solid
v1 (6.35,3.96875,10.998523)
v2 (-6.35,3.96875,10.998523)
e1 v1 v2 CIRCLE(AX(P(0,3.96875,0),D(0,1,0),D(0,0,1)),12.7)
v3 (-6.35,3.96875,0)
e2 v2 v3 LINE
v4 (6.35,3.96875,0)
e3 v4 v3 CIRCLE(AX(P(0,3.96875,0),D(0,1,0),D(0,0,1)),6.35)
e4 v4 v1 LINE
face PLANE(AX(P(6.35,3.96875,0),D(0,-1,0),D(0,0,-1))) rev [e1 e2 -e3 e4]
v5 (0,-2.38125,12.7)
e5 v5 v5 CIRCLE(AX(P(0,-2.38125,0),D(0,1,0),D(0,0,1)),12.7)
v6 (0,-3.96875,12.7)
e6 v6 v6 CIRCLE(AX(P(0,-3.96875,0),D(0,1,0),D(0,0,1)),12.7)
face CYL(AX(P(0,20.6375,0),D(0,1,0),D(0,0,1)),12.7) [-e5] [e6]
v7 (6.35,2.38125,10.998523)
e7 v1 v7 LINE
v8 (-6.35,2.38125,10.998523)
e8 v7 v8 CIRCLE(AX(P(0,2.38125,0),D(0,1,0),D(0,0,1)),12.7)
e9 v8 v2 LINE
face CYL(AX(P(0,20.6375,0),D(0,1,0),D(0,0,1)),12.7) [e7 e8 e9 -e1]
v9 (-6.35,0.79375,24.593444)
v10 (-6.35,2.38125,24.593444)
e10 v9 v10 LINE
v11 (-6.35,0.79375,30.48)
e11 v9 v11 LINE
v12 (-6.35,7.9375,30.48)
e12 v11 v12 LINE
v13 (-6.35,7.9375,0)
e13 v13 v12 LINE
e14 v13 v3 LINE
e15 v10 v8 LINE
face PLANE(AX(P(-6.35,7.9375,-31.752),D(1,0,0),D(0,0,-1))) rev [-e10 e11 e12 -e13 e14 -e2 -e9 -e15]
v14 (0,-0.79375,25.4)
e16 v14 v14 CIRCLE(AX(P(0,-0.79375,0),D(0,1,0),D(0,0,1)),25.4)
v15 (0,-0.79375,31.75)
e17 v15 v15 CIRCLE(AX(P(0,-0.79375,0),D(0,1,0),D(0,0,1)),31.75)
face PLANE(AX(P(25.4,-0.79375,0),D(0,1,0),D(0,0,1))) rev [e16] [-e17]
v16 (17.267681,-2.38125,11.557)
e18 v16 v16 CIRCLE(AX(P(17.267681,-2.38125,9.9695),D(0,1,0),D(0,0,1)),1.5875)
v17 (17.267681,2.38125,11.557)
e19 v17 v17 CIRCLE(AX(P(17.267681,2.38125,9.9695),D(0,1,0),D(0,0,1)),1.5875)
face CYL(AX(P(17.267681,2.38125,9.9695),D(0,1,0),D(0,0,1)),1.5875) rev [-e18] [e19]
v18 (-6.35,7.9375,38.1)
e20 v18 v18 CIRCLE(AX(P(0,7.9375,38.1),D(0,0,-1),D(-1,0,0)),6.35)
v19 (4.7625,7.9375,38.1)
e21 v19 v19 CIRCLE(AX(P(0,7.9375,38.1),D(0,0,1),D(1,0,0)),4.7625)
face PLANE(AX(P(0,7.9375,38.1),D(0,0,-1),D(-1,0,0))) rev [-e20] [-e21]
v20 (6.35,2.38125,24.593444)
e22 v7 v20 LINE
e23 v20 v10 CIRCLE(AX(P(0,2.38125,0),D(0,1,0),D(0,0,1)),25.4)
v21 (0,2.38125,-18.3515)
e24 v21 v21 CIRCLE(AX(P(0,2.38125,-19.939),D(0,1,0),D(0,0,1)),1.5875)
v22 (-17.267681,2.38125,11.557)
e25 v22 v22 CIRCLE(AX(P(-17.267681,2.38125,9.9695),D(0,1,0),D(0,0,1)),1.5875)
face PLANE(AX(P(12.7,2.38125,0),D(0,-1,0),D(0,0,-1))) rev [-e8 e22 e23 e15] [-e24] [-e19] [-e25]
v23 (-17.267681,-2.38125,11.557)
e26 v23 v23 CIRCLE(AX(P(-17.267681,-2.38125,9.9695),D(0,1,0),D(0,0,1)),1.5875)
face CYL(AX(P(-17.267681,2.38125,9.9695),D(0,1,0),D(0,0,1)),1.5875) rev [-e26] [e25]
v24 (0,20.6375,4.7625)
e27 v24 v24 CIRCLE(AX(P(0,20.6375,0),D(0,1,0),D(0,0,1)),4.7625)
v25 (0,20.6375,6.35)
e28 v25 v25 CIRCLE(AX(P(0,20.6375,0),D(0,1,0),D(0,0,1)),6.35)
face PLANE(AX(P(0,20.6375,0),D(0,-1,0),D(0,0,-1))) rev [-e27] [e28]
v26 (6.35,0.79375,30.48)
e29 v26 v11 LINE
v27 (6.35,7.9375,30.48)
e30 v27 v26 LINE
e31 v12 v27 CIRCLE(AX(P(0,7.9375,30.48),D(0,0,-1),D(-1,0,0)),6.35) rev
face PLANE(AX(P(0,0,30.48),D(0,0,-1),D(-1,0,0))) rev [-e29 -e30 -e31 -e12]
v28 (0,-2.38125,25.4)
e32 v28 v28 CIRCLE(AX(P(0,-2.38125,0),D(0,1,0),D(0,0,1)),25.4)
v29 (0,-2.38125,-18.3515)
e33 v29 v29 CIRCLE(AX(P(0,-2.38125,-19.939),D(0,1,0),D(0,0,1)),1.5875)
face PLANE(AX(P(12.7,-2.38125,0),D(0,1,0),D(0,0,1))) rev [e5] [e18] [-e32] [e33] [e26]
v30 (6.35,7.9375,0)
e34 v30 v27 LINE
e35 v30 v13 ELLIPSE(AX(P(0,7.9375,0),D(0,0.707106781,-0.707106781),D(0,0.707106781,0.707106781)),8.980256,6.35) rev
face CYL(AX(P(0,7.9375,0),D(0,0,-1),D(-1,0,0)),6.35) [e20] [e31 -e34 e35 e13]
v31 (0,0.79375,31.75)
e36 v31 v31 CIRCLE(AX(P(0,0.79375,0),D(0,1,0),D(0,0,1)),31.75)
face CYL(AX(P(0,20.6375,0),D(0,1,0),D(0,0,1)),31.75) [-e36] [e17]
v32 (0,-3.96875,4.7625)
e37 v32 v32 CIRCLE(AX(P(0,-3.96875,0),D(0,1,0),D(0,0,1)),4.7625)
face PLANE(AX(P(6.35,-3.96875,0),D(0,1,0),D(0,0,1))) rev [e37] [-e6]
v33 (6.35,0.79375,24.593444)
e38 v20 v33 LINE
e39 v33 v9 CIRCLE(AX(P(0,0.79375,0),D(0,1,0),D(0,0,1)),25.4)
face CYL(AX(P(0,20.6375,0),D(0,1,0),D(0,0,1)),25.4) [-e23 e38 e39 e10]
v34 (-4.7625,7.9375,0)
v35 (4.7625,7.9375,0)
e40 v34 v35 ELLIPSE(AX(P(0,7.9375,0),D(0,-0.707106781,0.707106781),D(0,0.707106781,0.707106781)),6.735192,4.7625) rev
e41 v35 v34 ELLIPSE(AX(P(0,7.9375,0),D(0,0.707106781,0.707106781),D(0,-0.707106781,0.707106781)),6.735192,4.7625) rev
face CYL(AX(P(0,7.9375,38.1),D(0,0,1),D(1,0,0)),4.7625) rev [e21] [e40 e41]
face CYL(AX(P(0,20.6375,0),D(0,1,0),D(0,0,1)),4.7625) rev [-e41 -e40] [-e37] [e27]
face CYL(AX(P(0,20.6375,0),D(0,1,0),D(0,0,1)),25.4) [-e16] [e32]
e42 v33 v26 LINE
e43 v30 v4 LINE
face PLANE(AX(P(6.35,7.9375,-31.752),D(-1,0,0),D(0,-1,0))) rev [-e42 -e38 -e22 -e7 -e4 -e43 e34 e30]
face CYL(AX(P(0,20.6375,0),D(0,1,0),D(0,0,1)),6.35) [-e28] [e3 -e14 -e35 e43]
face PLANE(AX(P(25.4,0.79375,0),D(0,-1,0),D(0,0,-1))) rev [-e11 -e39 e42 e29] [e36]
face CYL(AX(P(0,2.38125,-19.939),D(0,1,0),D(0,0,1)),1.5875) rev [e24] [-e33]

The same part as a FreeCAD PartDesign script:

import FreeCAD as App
import Part
import Sketcher

V = App.Vector
Q = App.Units.Quantity

doc = App.newDocument("Part")
body = doc.addObject("PartDesign::Body", "Body")

# Sketch on XY plane
sketch1 = doc.addObject("Sketcher::SketchObject", "Sketch")
body.addObject(sketch1)
sketch1.AttachmentSupport = (doc.XY_Plane, [""])
sketch1.MapMode = "FlatFace"
sketch1.addGeometry(Part.LineSegment(V(6.35, 20.6375, 0), V(0, 20.6375, 0)), False)
sketch1.addGeometry(Part.LineSegment(V(0, 20.6375, 0), V(0, -3.96875, 0)), False)
sketch1.addGeometry(Part.LineSegment(V(0, -3.96875, 0), V(12.7, -3.96875, 0)), False)
sketch1.addGeometry(Part.LineSegment(V(12.7, -3.96875, 0), V(12.7, -2.38125, 0)), False)
sketch1.addGeometry(Part.LineSegment(V(12.7, -2.38125, 0), V(25.4, -2.38125, 0)), False)
sketch1.addGeometry(Part.LineSegment(V(25.4, -2.38125, 0), V(25.4, -0.79375, 0)), False)
sketch1.addGeometry(Part.LineSegment(V(25.4, -0.79375, 0), V(31.75, -0.79375, 0)), False)
sketch1.addGeometry(Part.LineSegment(V(31.75, -0.79375, 0), V(31.75, 0.79375, 0)), False)
sketch1.addGeometry(Part.LineSegment(V(31.75, 0.79375, 0), V(25.4, 0.79375, 0)), False)
sketch1.addGeometry(Part.LineSegment(V(25.4, 0.79375, 0), V(25.4, 2.38125, 0)), False)
sketch1.addGeometry(Part.LineSegment(V(25.4, 2.38125, 0), V(12.7, 2.38125, 0)), False)
sketch1.addGeometry(Part.LineSegment(V(12.7, 2.38125, 0), V(12.7, 3.96875, 0)), False)
sketch1.addGeometry(Part.LineSegment(V(12.7, 3.96875, 0), V(6.35, 3.96875, 0)), False)
sketch1.addGeometry(Part.LineSegment(V(6.35, 3.96875, 0), V(6.35, 20.6375, 0)), False)
sketch1.addConstraint(Sketcher.Constraint("Coincident", 0, 2, 1, 1))
sketch1.addConstraint(Sketcher.Constraint("Coincident", 1, 2, 2, 1))
sketch1.addConstraint(Sketcher.Constraint("Coincident", 2, 2, 3, 1))
sketch1.addConstraint(Sketcher.Constraint("Coincident", 3, 2, 4, 1))
sketch1.addConstraint(Sketcher.Constraint("Coincident", 4, 2, 5, 1))
sketch1.addConstraint(Sketcher.Constraint("Coincident", 5, 2, 6, 1))
sketch1.addConstraint(Sketcher.Constraint("Coincident", 6, 2, 7, 1))
sketch1.addConstraint(Sketcher.Constraint("Coincident", 7, 2, 8, 1))
sketch1.addConstraint(Sketcher.Constraint("Coincident", 8, 2, 9, 1))
sketch1.addConstraint(Sketcher.Constraint("Coincident", 9, 2, 10, 1))
sketch1.addConstraint(Sketcher.Constraint("Coincident", 10, 2, 11, 1))
sketch1.addConstraint(Sketcher.Constraint("Coincident", 11, 2, 12, 1))
sketch1.addConstraint(Sketcher.Constraint("Coincident", 12, 2, 13, 1))
sketch1.addConstraint(Sketcher.Constraint("Coincident", 13, 2, 0, 1))
sketch1.addConstraint(Sketcher.Constraint("Horizontal", 0))
sketch1.addConstraint(Sketcher.Constraint("Vertical", 1))
sketch1.addConstraint(Sketcher.Constraint("Horizontal", 2))
sketch1.addConstraint(Sketcher.Constraint("Vertical", 3))
sketch1.addConstraint(Sketcher.Constraint("Horizontal", 4))
sketch1.addConstraint(Sketcher.Constraint("Vertical", 5))
sketch1.addConstraint(Sketcher.Constraint("Horizontal", 6))
sketch1.addConstraint(Sketcher.Constraint("Vertical", 7))
sketch1.addConstraint(Sketcher.Constraint("Horizontal", 8))
sketch1.addConstraint(Sketcher.Constraint("Vertical", 9))
sketch1.addConstraint(Sketcher.Constraint("Horizontal", 10))
sketch1.addConstraint(Sketcher.Constraint("Vertical", 11))
sketch1.addConstraint(Sketcher.Constraint("Horizontal", 12))
sketch1.addConstraint(Sketcher.Constraint("Vertical", 13))
sketch1.addConstraint(Sketcher.Constraint("Symmetric", 5, 2, 8, 2, -1))
sketch1.addConstraint(Sketcher.Constraint("Symmetric", 3, 2, 10, 2, -1))
sketch1.addConstraint(Sketcher.Constraint("PointOnObject", 0, 2, -2))
sketch1.addConstraint(Sketcher.Constraint("Equal", 2, 4))
sketch1.addConstraint(Sketcher.Constraint("Equal", 0, 6))
sketch1.addConstraint(Sketcher.Constraint("Equal", 8, 12))
sketch1.addConstraint(Sketcher.Constraint("Equal", 3, 5))
sketch1.addConstraint(Sketcher.Constraint("Equal", 5, 7))
sketch1.addConstraint(Sketcher.Constraint("Equal", 9, 11))
sketch1.addConstraint(Sketcher.Constraint("DistanceX", 2, 1, 2, 2, Q("0.5 in")))
sketch1.addConstraint(Sketcher.Constraint("DistanceY", 1, 2, 1, 1, Q("0.96875 in")))
sketch1.addConstraint(Sketcher.Constraint("DistanceY", 3, 1, 3, 2, Q("0.0625 in")))
revolution = doc.addObject("PartDesign::Revolution", "Revolution")
body.addObject(revolution)
revolution.Profile = sketch1
revolution.ReferenceAxis = (sketch1, ["V_Axis"])
revolution.Angle = 360

# Sketch on XZ plane
sketch2 = doc.addObject("Sketcher::SketchObject", "Sketch001")
body.addObject(sketch2)
sketch2.AttachmentSupport = (doc.XZ_Plane, [""])
sketch2.MapMode = "FlatFace"
sketch2.AttachmentOffset = App.Placement(V(0, 0, -0.3125 * 25.4), App.Rotation())
sketch2.addGeometry(Part.LineSegment(V(0, 0, 0), V(0, 38.1, 0)), False)
sketch2.addGeometry(Part.LineSegment(V(0, 38.1, 0), V(6.35, 38.1, 0)), False)
sketch2.addGeometry(Part.LineSegment(V(6.35, 38.1, 0), V(6.35, 0, 0)), False)
sketch2.addGeometry(Part.LineSegment(V(6.35, 0, 0), V(0, 0, 0)), False)
sketch2.addConstraint(Sketcher.Constraint("Coincident", 0, 2, 1, 1))
sketch2.addConstraint(Sketcher.Constraint("Coincident", 1, 2, 2, 1))
sketch2.addConstraint(Sketcher.Constraint("Coincident", 2, 2, 3, 1))
sketch2.addConstraint(Sketcher.Constraint("Coincident", 3, 2, 0, 1))
sketch2.addConstraint(Sketcher.Constraint("Vertical", 0))
sketch2.addConstraint(Sketcher.Constraint("Horizontal", 1))
sketch2.addConstraint(Sketcher.Constraint("Vertical", 2))
sketch2.addConstraint(Sketcher.Constraint("Horizontal", 3))
sketch2.addConstraint(Sketcher.Constraint("Coincident", 3, 2, -1, 1))
sketch2.addConstraint(Sketcher.Constraint("DistanceY", 0, 1, 0, 2, Q("1.5 in")))
sketch2.addConstraint(Sketcher.Constraint("DistanceX", 1, 1, 1, 2, Q("0.25 in")))
revolution2 = doc.addObject("PartDesign::Revolution", "Revolution001")
body.addObject(revolution2)
revolution2.Profile = sketch2
revolution2.ReferenceAxis = (sketch2, ["V_Axis"])
revolution2.Angle = 360

# Sketch on XY plane
sketch3 = doc.addObject("Sketcher::SketchObject", "Sketch002")
body.addObject(sketch3)
sketch3.AttachmentSupport = (doc.XY_Plane, [""])
sketch3.MapMode = "FlatFace"
sketch3.addGeometry(Part.LineSegment(V(6.35, 0.79375, 0), V(6.35, 7.9375, 0)), False)
sketch3.addGeometry(Part.LineSegment(V(6.35, 7.9375, 0), V(3.81, 7.9375, 0)), False)
sketch3.addGeometry(Part.LineSegment(V(3.81, 7.9375, 0), V(3.81, 3.33375, 0)), False)
sketch3.addGeometry(Part.LineSegment(V(3.81, 3.33375, 0), V(-3.81, 3.33375, 0)), False)
sketch3.addGeometry(Part.LineSegment(V(-3.81, 3.33375, 0), V(-3.81, 7.9375, 0)), False)
sketch3.addGeometry(Part.LineSegment(V(-3.81, 7.9375, 0), V(-6.35, 7.9375, 0)), False)
sketch3.addGeometry(Part.LineSegment(V(-6.35, 7.9375, 0), V(-6.35, 0.79375, 0)), False)
sketch3.addGeometry(Part.LineSegment(V(-6.35, 0.79375, 0), V(6.35, 0.79375, 0)), False)
sketch3.addConstraint(Sketcher.Constraint("Coincident", 0, 2, 1, 1))
sketch3.addConstraint(Sketcher.Constraint("Coincident", 1, 2, 2, 1))
sketch3.addConstraint(Sketcher.Constraint("Coincident", 2, 2, 3, 1))
sketch3.addConstraint(Sketcher.Constraint("Coincident", 3, 2, 4, 1))
sketch3.addConstraint(Sketcher.Constraint("Coincident", 4, 2, 5, 1))
sketch3.addConstraint(Sketcher.Constraint("Coincident", 5, 2, 6, 1))
sketch3.addConstraint(Sketcher.Constraint("Coincident", 6, 2, 7, 1))
sketch3.addConstraint(Sketcher.Constraint("Coincident", 7, 2, 0, 1))
sketch3.addConstraint(Sketcher.Constraint("Vertical", 0))
sketch3.addConstraint(Sketcher.Constraint("Horizontal", 1))
sketch3.addConstraint(Sketcher.Constraint("Vertical", 2))
sketch3.addConstraint(Sketcher.Constraint("Horizontal", 3))
sketch3.addConstraint(Sketcher.Constraint("Vertical", 4))
sketch3.addConstraint(Sketcher.Constraint("Horizontal", 5))
sketch3.addConstraint(Sketcher.Constraint("Vertical", 6))
sketch3.addConstraint(Sketcher.Constraint("Horizontal", 7))
sketch3.addConstraint(Sketcher.Constraint("Symmetric", 1, 2, 4, 2, -2))
sketch3.addConstraint(Sketcher.Constraint("Equal", 1, 5))
sketch3.addConstraint(Sketcher.Constraint("DistanceX", 1, 2, 1, 1, Q("0.1 in")))
sketch3.addConstraint(Sketcher.Constraint("DistanceX", 3, 2, 3, 1, Q("0.3 in")))
sketch3.addConstraint(Sketcher.Constraint("DistanceY", 6, 2, 3, 2, Q("0.1 in")))
sketch3.addConstraint(Sketcher.Constraint("DistanceY", 0, 1, 0, 2, Q("0.28125 in")))
sketch3.addConstraint(Sketcher.Constraint("DistanceY", -1, 1, 0, 2, Q("0.3125 in")))
pad1 = doc.addObject("PartDesign::Pad", "Pad")
body.addObject(pad1)
pad1.Profile = sketch3
pad1.Length = Q("1.2 in")

# Sketch on XY plane
sketch4 = doc.addObject("Sketcher::SketchObject", "Sketch003")
body.addObject(sketch4)
sketch4.AttachmentSupport = (doc.XY_Plane, [""])
sketch4.MapMode = "FlatFace"
sketch4.AttachmentOffset = App.Placement(V(0, 0, 1.5 * 25.4), App.Rotation())
sketch4.addGeometry(Part.Circle(V(0, 7.9375, 0), V(0, 0, 1), 4.7625), False)
sketch4.addConstraint(Sketcher.Constraint("PointOnObject", 0, 3, -2))
sketch4.addConstraint(Sketcher.Constraint("Diameter", 0, Q("0.375 in")))
sketch4.addConstraint(Sketcher.Constraint("DistanceY", -1, 1, 0, 3, Q("0.3125 in")))
doc.recompute()
hole = doc.addObject("PartDesign::Hole", "Hole")
body.addObject(hole)
hole.Profile = sketch4
hole.ThreadType = "None"
hole.Diameter = Q("0.375 in")
hole.DepthType = "Dimension"
hole.Depth = Q("1.5 in")
hole.DrillPoint = "Flat"

# Sketch on XZ plane
sketch5 = doc.addObject("Sketcher::SketchObject", "Sketch004")
body.addObject(sketch5)
sketch5.AttachmentSupport = (doc.XZ_Plane, [""])
sketch5.MapMode = "FlatFace"
sketch5.AttachmentOffset = App.Placement(V(0, 0, -0.8125 * 25.4), App.Rotation())
sketch5.addGeometry(Part.Circle(V(0, 0, 0), V(0, 0, 1), 4.7625), False)
sketch5.addConstraint(Sketcher.Constraint("Coincident", 0, 3, -1, 1))
sketch5.addConstraint(Sketcher.Constraint("Diameter", 0, Q("0.375 in")))
doc.recompute()
hole2 = doc.addObject("PartDesign::Hole", "Hole001")
body.addObject(hole2)
hole2.Profile = sketch5
hole2.ThreadType = "None"
hole2.Diameter = Q("0.375 in")
hole2.DepthType = "ThroughAll"
hole2.Reversed = True

# Sketch on XZ plane
sketch6 = doc.addObject("Sketcher::SketchObject", "Sketch005")
body.addObject(sketch6)
sketch6.AttachmentSupport = (doc.XZ_Plane, [""])
sketch6.MapMode = "FlatFace"
sketch6.AttachmentOffset = App.Placement(V(0, 0, -0.09375 * 25.4), App.Rotation())
sketch6.addGeometry(Part.Circle(V(0, -19.939, 0), V(0, 0, 1), 1.5875), False)
sketch6.addGeometry(Part.Circle(V(17.267681, 9.9695, 0), V(0, 0, 1), 1.5875), False)
sketch6.addGeometry(Part.Circle(V(-17.267681, 9.9695, 0), V(0, 0, 1), 1.5875), False)
sketch6.addConstraint(Sketcher.Constraint("Equal", 0, 1))
sketch6.addConstraint(Sketcher.Constraint("Equal", 1, 2))
sketch6.addConstraint(Sketcher.Constraint("Symmetric", 1, 3, 2, 3, -2))
sketch6.addConstraint(Sketcher.Constraint("PointOnObject", 0, 3, -2))
sketch6.addConstraint(Sketcher.Constraint("Diameter", 0, Q("0.125 in")))
sketch6.addConstraint(Sketcher.Constraint("DistanceY", 0, 3, -1, 1, Q("0.785 in")))
sketch6.addConstraint(Sketcher.Constraint("DistanceY", -1, 1, 1, 3, Q("0.3925 in")))
sketch6.addConstraint(Sketcher.Constraint("DistanceX", -1, 1, 1, 3, 17.267681))
doc.recompute()
hole3 = doc.addObject("PartDesign::Hole", "Hole002")
body.addObject(hole3)
hole3.Profile = sketch6
hole3.ThreadType = "None"
hole3.Diameter = Q("0.125 in")
hole3.DepthType = "ThroughAll"
hole3.Reversed = True

doc.recompute()
